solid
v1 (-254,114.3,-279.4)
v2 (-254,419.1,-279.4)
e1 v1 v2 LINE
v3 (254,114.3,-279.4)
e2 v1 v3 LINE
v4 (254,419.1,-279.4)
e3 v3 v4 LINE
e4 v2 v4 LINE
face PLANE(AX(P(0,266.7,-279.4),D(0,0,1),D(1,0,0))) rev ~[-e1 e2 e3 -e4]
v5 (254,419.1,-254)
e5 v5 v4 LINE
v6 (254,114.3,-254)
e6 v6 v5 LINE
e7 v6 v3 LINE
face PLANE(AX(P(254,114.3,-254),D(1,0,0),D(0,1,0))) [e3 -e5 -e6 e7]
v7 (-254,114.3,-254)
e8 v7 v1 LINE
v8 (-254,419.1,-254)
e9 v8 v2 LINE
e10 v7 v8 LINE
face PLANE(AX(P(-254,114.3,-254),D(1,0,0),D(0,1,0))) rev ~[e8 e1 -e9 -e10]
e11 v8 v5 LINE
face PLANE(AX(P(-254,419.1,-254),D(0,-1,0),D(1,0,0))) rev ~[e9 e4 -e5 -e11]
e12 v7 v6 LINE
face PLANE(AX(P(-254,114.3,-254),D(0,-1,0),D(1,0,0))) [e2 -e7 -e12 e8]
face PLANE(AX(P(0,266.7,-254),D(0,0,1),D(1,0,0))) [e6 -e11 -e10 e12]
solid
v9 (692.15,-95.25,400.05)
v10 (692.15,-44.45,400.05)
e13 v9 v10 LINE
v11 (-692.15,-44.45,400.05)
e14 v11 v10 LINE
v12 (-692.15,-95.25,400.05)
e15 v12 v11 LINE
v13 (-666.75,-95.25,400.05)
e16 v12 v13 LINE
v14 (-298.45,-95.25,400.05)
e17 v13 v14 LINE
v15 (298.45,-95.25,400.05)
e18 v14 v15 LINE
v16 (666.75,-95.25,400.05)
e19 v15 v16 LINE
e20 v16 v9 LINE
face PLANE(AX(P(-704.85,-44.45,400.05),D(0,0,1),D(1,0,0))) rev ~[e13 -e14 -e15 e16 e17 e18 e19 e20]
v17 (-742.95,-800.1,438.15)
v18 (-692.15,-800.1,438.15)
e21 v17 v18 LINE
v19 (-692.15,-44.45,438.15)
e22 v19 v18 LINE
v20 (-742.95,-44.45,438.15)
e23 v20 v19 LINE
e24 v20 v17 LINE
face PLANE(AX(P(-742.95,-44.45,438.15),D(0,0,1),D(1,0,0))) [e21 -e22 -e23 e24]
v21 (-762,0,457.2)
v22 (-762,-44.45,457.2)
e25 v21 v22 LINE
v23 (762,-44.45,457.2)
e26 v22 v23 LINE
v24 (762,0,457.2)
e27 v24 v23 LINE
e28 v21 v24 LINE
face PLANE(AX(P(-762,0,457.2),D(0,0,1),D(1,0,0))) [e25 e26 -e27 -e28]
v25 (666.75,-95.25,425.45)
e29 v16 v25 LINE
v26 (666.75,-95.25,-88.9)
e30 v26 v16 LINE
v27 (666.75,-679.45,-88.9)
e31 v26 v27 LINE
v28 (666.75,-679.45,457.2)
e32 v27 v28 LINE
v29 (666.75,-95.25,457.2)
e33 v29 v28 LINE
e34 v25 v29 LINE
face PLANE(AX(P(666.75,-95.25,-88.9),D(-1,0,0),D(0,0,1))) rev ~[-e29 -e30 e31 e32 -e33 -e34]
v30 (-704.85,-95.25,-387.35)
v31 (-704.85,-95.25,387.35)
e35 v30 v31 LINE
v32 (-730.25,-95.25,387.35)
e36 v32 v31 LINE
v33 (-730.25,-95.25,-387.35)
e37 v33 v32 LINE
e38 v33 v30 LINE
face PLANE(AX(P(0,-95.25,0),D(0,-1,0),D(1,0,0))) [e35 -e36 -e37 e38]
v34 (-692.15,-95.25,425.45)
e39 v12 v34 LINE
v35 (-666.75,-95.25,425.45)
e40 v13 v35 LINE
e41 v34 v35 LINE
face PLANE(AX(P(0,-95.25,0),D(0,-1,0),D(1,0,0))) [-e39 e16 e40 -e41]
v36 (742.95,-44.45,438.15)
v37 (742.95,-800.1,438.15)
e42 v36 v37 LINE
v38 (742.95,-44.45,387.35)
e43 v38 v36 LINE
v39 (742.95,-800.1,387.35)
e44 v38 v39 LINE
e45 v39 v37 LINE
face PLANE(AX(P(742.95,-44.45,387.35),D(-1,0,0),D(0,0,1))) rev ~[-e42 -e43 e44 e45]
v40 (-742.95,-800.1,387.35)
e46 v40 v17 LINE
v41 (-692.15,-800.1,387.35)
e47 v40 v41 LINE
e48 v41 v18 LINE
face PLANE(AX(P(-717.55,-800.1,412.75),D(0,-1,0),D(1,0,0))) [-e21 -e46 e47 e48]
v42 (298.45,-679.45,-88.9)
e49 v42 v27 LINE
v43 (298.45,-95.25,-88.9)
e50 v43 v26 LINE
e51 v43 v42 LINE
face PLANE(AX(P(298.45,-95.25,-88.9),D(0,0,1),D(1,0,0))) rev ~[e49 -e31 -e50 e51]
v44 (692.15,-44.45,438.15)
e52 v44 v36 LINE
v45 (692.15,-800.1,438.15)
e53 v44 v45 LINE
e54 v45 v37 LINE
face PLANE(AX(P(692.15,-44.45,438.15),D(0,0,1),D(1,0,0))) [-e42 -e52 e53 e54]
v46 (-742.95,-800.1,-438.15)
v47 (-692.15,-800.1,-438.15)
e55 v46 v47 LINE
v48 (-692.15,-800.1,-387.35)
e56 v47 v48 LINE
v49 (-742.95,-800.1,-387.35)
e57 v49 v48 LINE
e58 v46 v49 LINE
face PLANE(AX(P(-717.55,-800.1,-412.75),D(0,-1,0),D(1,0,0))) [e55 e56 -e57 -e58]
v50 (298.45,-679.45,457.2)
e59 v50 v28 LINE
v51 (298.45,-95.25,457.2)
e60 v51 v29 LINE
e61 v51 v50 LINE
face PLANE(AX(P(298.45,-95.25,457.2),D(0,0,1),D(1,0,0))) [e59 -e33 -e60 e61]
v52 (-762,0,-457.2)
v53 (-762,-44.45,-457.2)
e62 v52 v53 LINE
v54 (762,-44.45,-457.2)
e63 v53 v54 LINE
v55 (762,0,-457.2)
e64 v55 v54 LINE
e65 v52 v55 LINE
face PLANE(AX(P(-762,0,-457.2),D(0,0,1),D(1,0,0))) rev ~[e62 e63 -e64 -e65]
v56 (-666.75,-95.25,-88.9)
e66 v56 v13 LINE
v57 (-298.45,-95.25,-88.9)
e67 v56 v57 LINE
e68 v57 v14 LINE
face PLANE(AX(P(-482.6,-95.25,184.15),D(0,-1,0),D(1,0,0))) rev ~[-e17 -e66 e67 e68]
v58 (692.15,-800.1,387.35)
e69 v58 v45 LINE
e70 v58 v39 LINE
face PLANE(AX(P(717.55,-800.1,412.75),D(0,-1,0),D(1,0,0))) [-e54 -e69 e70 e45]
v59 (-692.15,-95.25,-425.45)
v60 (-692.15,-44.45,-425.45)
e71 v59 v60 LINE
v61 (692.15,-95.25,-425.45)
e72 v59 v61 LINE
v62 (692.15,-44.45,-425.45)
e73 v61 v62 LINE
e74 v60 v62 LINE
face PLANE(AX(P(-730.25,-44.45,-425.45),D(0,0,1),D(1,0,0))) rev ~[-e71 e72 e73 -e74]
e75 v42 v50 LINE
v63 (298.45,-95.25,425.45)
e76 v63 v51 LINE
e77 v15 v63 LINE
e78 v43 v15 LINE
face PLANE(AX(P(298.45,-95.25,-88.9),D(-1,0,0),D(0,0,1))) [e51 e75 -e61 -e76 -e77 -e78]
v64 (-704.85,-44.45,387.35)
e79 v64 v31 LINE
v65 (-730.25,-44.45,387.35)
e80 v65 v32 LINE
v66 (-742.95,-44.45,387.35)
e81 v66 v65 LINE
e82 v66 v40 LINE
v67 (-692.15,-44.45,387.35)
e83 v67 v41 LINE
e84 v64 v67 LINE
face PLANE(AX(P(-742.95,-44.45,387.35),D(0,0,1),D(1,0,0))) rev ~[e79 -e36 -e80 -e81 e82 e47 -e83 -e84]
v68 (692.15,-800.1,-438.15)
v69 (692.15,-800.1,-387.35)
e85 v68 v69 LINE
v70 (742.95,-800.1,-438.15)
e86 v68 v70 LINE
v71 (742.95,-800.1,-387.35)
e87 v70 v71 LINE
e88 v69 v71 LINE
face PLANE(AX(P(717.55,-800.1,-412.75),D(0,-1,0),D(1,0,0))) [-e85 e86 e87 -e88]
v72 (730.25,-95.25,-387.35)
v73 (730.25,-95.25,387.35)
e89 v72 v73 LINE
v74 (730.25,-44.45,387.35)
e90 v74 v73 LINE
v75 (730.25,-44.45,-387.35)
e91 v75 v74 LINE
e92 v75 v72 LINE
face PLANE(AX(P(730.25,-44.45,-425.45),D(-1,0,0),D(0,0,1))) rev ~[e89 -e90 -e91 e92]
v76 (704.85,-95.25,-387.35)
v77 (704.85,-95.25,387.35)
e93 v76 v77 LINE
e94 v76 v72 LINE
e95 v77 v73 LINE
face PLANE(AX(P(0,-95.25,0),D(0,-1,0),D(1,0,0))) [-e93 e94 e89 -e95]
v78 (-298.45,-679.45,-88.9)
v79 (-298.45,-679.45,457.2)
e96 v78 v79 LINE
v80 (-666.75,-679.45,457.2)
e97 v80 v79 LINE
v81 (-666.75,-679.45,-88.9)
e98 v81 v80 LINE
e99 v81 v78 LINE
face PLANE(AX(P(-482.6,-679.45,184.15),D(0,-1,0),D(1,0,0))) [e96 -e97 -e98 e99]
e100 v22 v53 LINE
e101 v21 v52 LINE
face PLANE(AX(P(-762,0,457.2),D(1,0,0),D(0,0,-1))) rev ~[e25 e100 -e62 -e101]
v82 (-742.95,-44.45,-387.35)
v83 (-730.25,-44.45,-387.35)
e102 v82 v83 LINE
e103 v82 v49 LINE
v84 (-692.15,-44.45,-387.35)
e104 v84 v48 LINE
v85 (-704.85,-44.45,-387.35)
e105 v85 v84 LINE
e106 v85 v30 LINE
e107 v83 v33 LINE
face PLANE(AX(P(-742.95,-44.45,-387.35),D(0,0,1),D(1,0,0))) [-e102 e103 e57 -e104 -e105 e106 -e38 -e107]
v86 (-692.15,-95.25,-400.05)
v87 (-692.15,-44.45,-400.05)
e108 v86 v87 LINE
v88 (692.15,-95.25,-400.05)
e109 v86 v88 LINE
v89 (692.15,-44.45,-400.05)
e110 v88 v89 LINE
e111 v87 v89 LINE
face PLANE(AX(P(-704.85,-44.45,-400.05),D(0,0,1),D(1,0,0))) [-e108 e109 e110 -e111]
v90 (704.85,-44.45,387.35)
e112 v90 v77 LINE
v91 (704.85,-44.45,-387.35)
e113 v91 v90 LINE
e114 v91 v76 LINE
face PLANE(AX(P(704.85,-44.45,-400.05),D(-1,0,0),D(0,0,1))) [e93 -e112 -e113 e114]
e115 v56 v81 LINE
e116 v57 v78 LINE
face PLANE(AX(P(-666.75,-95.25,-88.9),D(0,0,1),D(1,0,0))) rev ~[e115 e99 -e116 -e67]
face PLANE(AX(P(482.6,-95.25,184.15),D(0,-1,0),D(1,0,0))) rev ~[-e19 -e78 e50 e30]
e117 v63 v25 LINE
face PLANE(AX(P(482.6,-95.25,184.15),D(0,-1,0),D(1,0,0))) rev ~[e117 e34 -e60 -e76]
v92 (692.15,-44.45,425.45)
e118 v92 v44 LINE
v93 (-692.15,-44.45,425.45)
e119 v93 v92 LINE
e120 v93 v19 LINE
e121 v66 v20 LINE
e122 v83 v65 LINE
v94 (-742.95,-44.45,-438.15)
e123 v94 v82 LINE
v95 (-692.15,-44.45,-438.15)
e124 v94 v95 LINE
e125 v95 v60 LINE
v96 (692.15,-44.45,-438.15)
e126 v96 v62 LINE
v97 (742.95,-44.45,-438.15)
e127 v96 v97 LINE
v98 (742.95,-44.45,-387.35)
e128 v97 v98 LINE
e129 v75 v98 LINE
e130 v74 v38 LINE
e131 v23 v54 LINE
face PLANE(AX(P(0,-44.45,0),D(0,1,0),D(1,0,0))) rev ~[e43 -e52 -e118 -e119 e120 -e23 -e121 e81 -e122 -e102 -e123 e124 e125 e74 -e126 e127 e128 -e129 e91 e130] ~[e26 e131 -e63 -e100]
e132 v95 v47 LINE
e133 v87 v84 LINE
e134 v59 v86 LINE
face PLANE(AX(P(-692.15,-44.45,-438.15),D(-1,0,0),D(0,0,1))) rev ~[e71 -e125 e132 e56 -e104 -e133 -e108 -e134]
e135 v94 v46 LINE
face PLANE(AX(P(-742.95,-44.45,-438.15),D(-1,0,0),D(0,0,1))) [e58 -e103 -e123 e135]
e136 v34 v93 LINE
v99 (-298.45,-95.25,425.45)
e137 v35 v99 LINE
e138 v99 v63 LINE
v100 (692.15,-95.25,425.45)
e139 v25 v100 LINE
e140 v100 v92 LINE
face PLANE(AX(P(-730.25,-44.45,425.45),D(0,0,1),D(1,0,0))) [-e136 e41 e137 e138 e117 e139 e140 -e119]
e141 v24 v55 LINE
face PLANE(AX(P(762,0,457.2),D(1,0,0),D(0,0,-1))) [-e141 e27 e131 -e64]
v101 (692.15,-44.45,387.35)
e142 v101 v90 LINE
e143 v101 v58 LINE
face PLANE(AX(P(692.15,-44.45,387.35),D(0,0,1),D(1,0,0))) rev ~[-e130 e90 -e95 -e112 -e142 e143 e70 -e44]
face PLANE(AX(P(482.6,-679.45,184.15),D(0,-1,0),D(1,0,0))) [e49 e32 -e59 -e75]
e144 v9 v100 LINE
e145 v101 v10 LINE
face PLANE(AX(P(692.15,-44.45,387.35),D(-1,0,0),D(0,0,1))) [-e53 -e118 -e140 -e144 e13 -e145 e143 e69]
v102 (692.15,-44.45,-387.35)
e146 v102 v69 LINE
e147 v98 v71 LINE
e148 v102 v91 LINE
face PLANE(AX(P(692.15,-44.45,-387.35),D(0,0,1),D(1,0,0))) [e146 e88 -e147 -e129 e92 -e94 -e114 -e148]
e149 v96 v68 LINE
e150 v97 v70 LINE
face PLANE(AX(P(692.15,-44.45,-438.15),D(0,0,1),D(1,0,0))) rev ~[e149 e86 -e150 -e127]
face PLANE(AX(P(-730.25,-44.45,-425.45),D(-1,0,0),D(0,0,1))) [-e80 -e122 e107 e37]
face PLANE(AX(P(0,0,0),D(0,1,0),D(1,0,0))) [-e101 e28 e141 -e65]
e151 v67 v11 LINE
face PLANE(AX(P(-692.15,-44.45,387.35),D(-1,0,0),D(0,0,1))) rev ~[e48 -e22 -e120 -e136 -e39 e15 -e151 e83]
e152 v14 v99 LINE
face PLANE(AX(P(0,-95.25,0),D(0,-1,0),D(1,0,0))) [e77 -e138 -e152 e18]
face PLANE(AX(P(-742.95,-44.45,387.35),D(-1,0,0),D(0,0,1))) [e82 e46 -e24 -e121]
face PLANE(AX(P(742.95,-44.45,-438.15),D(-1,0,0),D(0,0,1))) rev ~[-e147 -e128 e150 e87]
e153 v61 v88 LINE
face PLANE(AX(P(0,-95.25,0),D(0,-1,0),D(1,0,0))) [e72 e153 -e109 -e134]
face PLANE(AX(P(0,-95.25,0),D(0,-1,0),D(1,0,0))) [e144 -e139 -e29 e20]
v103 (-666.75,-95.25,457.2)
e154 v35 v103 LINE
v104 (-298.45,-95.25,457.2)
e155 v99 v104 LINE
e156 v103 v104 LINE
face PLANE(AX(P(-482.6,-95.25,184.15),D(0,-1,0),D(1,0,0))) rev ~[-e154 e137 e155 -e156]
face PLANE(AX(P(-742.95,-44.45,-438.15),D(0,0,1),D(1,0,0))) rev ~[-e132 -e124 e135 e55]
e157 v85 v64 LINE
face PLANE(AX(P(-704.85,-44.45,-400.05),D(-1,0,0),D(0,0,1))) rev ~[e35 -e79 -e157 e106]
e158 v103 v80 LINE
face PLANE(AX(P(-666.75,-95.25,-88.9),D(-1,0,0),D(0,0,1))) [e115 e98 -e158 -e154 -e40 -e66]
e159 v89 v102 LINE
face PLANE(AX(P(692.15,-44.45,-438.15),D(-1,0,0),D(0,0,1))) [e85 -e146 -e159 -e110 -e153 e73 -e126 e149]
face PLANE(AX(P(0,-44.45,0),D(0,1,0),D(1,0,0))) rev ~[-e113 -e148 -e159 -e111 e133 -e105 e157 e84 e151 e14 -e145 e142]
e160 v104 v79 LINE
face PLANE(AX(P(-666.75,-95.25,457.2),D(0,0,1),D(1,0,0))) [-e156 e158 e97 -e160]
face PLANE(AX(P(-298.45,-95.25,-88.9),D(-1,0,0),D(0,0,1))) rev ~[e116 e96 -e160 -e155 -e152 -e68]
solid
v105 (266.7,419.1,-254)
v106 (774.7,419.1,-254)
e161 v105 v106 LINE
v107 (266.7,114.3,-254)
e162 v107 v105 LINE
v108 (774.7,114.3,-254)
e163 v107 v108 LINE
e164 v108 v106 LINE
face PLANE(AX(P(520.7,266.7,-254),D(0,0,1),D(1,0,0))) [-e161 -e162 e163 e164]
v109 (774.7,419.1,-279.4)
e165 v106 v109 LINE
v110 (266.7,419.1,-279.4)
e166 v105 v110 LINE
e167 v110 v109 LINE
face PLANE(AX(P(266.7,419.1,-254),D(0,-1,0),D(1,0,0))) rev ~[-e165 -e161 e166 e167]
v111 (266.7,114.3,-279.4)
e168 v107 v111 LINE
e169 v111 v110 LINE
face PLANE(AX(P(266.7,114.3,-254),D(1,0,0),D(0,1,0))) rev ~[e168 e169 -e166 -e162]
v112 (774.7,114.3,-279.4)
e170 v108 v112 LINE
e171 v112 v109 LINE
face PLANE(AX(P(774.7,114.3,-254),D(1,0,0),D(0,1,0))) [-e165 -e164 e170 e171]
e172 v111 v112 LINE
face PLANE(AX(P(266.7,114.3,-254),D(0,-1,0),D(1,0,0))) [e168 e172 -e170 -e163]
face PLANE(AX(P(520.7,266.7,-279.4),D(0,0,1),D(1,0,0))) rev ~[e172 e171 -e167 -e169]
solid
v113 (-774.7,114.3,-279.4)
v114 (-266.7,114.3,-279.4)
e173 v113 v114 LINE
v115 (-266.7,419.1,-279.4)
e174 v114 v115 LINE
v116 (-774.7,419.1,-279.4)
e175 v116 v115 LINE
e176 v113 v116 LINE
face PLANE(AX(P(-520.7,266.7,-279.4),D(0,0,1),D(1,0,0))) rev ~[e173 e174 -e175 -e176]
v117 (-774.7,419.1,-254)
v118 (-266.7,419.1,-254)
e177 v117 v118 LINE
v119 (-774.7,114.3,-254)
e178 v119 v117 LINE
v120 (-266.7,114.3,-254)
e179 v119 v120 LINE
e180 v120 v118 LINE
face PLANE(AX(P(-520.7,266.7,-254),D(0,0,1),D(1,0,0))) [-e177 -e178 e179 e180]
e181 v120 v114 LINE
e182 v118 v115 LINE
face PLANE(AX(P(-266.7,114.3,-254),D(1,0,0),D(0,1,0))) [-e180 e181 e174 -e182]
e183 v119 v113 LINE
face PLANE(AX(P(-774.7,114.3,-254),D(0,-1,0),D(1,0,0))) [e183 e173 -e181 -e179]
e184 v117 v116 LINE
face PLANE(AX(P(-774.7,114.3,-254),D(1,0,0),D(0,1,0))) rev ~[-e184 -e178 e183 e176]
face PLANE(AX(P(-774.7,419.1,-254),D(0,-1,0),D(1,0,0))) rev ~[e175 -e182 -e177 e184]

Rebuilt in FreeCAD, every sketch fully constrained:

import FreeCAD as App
import Part
import Sketcher

V = App.Vector
Q = App.Units.Quantity


def add_polygon(sketch, points):
    """Adds a closed chain of lines whose ends are joined by coincident constraints."""
    first, n = sketch.GeometryCount, len(points)
    for a, b in zip(points, points[1:] + points[:1]):
        sketch.addGeometry(Part.LineSegment(App.Vector(*a, 0), App.Vector(*b, 0)), False)
    for i in range(n):
        sketch.addConstraint(Sketcher.Constraint("Coincident", first + i, 2, first + (i + 1) % n, 1))

doc = App.newDocument("Part")
body = doc.addObject("PartDesign::Body", "Body")

# Sketch on XZ plane
sketch1 = body.newObject("Sketcher::SketchObject", "Sketch")
sketch1.AttachmentSupport = (doc.getObject("XZ_Plane"), [""])
sketch1.MapMode = "FlatFace"
add_polygon(sketch1, [(-762, -457), (-762, 457), (762, 457), (762, -457)])  # lines 0-3
sketch1.addConstraint([
    Sketcher.Constraint("Vertical", 0),
    Sketcher.Constraint("Horizontal", 1),
    Sketcher.Constraint("Vertical", 2),
    Sketcher.Constraint("Horizontal", 3),
    Sketcher.Constraint("Symmetric", 0, 2, 2, 2, -1, 1),
    Sketcher.Constraint("DistanceX", 1, 1, 1, 2, Q("60 in")),
    Sketcher.Constraint("DistanceY", 0, 1, 0, 2, Q("36 in")),
])
pad1 = body.newObject("PartDesign::Pad", "Pad")
pad1.Profile = sketch1
pad1.Length = Q("1.75 in")

# Sketch on XZ plane
sketch2 = body.newObject("Sketcher::SketchObject", "Sketch001")
sketch2.AttachmentSupport = (doc.getObject("XZ_Plane"), [""])
sketch2.MapMode = "FlatFace"
sketch2.AttachmentOffset = App.Placement(V(0, 0, 1.75 * 25.4), App.Rotation())
add_polygon(sketch2, [(692, 438), (692, 387), (743, 387), (743, 438)])  # lines 0-3
add_polygon(sketch2, [(692, -387), (692, -438), (743, -438), (743, -387)])  # lines 4-7
add_polygon(sketch2, [(-743, -387), (-743, -438), (-692, -438), (-692, -387)])  # lines 8-11
add_polygon(sketch2, [(-743, 438), (-743, 387), (-692, 387), (-692, 438)])  # lines 12-15
sketch2.addConstraint([
    Sketcher.Constraint("Vertical", 0),
    Sketcher.Constraint("Horizontal", 1),
    Sketcher.Constraint("Vertical", 2),
    Sketcher.Constraint("Horizontal", 3),
    Sketcher.Constraint("Vertical", 4),
    Sketcher.Constraint("Horizontal", 5),
    Sketcher.Constraint("Vertical", 6),
    Sketcher.Constraint("Horizontal", 7),
    Sketcher.Constraint("Vertical", 8),
    Sketcher.Constraint("Horizontal", 9),
    Sketcher.Constraint("Vertical", 10),
    Sketcher.Constraint("Horizontal", 11),
    Sketcher.Constraint("Vertical", 12),
    Sketcher.Constraint("Horizontal", 13),
    Sketcher.Constraint("Vertical", 14),
    Sketcher.Constraint("Horizontal", 15),
    Sketcher.Constraint("Symmetric", 2, 2, 8, 2, -1, 1),
    Sketcher.Constraint("Symmetric", 0, 2, 10, 2, -1, 1),
    Sketcher.Constraint("Symmetric", 6, 2, 12, 2, -1, 1),
    Sketcher.Constraint("Symmetric", 4, 2, 14, 2, -1, 1),
    Sketcher.Constraint("Symmetric", 5, 2, 8, 2, -2),
    Sketcher.Constraint("Symmetric", 7, 2, 10, 2, -2),
    Sketcher.Constraint("Equal", 15, 0),
    Sketcher.Constraint("DistanceX", 1, 1, 1, 2, Q("2 in")),
    Sketcher.Constraint("DistanceY", 4, 2, 0, 2, Q("32.5 in")),
    Sketcher.Constraint("DistanceX", 8, 2, 4, 2, Q("56.5 in")),
])
pad2 = body.newObject("PartDesign::Pad", "Pad001")
pad2.Profile = sketch2
pad2.Length = Q("29.75 in")

# Sketch on XZ plane
sketch3 = body.newObject("Sketcher::SketchObject", "Sketch002")
sketch3.AttachmentSupport = (doc.getObject("XZ_Plane"), [""])
sketch3.MapMode = "FlatFace"
sketch3.AttachmentOffset = App.Placement(V(0, 0, 1.75 * 25.4), App.Rotation())
add_polygon(sketch3, [(-730, 425), (-730, -425), (730, -425), (730, 425)])  # lines 0-3
add_polygon(sketch3, [(705, -400), (-705, -400), (-705, 400), (705, 400)])  # lines 4-7
sketch3.addConstraint([
    Sketcher.Constraint("Vertical", 0),
    Sketcher.Constraint("Horizontal", 1),
    Sketcher.Constraint("Vertical", 2),
    Sketcher.Constraint("Horizontal", 3),
    Sketcher.Constraint("Horizontal", 4),
    Sketcher.Constraint("Vertical", 5),
    Sketcher.Constraint("Horizontal", 6),
    Sketcher.Constraint("Vertical", 7),
    Sketcher.Constraint("Symmetric", 0, 2, 2, 2, -1, 1),
    Sketcher.Constraint("Symmetric", 4, 2, 6, 2, -1, 1),
    Sketcher.Constraint("DistanceX", 1, 1, 1, 2, Q("57.5 in")),
    Sketcher.Constraint("DistanceX", 4, 2, 4, 1, Q("55.5 in")),
    Sketcher.Constraint("DistanceY", 0, 2, 0, 1, Q("33.5 in")),
    Sketcher.Constraint("DistanceY", 5, 1, 5, 2, Q("31.5 in")),
])
pad3 = body.newObject("PartDesign::Pad", "Pad002")
pad3.Profile = sketch3
pad3.Length = Q("2 in")

# Sketch on XZ plane
sketch4 = body.newObject("Sketcher::SketchObject", "Sketch003")
sketch4.AttachmentSupport = (doc.getObject("XZ_Plane"), [""])
sketch4.MapMode = "FlatFace"
sketch4.AttachmentOffset = App.Placement(V(0, 0, 3.75 * 25.4), App.Rotation())
add_polygon(sketch4, [(-667, 457), (-667, -89), (-298, -89), (-298, 457)])  # lines 0-3
add_polygon(sketch4, [(298, 457), (298, -89), (667, -89), (667, 457)])  # lines 4-7
sketch4.addConstraint([
    Sketcher.Constraint("Vertical", 0),
    Sketcher.Constraint("Horizontal", 1),
    Sketcher.Constraint("Vertical", 2),
    Sketcher.Constraint("Horizontal", 3),
    Sketcher.Constraint("Vertical", 4),
    Sketcher.Constraint("Horizontal", 5),
    Sketcher.Constraint("Vertical", 6),
    Sketcher.Constraint("Horizontal", 7),
    Sketcher.Constraint("Symmetric", 1, 2, 4, 2, -2),
    Sketcher.Constraint("Symmetric", 3, 2, 6, 2, -2),
    Sketcher.Constraint("DistanceX", 1, 1, 1, 2, Q("14.5 in")),
    Sketcher.Constraint("DistanceY", 0, 2, 0, 1, Q("21.5 in")),
    Sketcher.Constraint("DistanceY", -1, 1, 2, 2, Q("18 in")),
    Sketcher.Constraint("DistanceX", 0, 2, 4, 2, Q("38 in")),
])
pad4 = body.newObject("PartDesign::Pad", "Pad003")
pad4.Profile = sketch4
pad4.Length = Q("23 in")
body2 = doc.addObject("PartDesign::Body", "Body001")

# Sketch on XY plane
sketch5 = body2.newObject("Sketcher::SketchObject", "Sketch004")
sketch5.AttachmentSupport = (doc.getObject("XY_Plane001"), [""])
sketch5.MapMode = "FlatFace"
sketch5.AttachmentOffset = App.Placement(V(0, 0, -10 * 25.4), App.Rotation())
add_polygon(sketch5, [(-775, 419), (-775, 114), (-267, 114), (-267, 419)])  # lines 0-3
sketch5.addConstraint([
    Sketcher.Constraint("Vertical", 0),
    Sketcher.Constraint("Horizontal", 1),
    Sketcher.Constraint("Vertical", 2),
    Sketcher.Constraint("Horizontal", 3),
    Sketcher.Constraint("DistanceX", 1, 1, 1, 2, Q("20 in")),
    Sketcher.Constraint("DistanceY", 0, 2, 0, 1, Q("12 in")),
    Sketcher.Constraint("DistanceX", 0, 2, -1, 1, Q("30.5 in")),
    Sketcher.Constraint("DistanceY", -1, 1, 0, 2, Q("4.5 in")),
])
pad5 = body2.newObject("PartDesign::Pad", "Pad004")
pad5.Profile = sketch5
pad5.Length = Q("1 in")
pad5.Reversed = True
body3 = doc.addObject("PartDesign::Body", "Body002")

# Sketch on XY plane
sketch6 = body3.newObject("Sketcher::SketchObject", "Sketch005")
sketch6.AttachmentSupport = (doc.getObject("XY_Plane002"), [""])
sketch6.MapMode = "FlatFace"
sketch6.AttachmentOffset = App.Placement(V(0, 0, -10 * 25.4), App.Rotation())
add_polygon(sketch6, [(-254, 419), (-254, 114), (254, 114), (254, 419)])  # lines 0-3
sketch6.addConstraint([
    Sketcher.Constraint("Vertical", 0),
    Sketcher.Constraint("Horizontal", 1),
    Sketcher.Constraint("Vertical", 2),
    Sketcher.Constraint("Horizontal", 3),
    Sketcher.Constraint("DistanceX", 1, 1, 1, 2, Q("20 in")),
    Sketcher.Constraint("DistanceY", 0, 2, 0, 1, Q("12 in")),
    Sketcher.Constraint("DistanceX", 0, 2, -1, 1, Q("10 in")),
    Sketcher.Constraint("DistanceY", -1, 1, 0, 2, Q("4.5 in")),
])
pad6 = body3.newObject("PartDesign::Pad", "Pad005")
pad6.Profile = sketch6
pad6.Length = Q("1 in")
pad6.Reversed = True
body4 = doc.addObject("PartDesign::Body", "Body003")

# Sketch on XY plane
sketch7 = body4.newObject("Sketcher::SketchObject", "Sketch006")
sketch7.AttachmentSupport = (doc.getObject("XY_Plane003"), [""])
sketch7.MapMode = "FlatFace"
sketch7.AttachmentOffset = App.Placement(V(0, 0, -10 * 25.4), App.Rotation())
add_polygon(sketch7, [(267, 419), (267, 114), (775, 114), (775, 419)])  # lines 0-3
sketch7.addConstraint([
    Sketcher.Constraint("Vertical", 0),
    Sketcher.Constraint("Horizontal", 1),
    Sketcher.Constraint("Vertical", 2),
    Sketcher.Constraint("Horizontal", 3),
    Sketcher.Constraint("DistanceX", 1, 1, 1, 2, Q("20 in")),
    Sketcher.Constraint("DistanceY", 0, 2, 0, 1, Q("12 in")),
    Sketcher.Constraint("DistanceX", -1, 1, 0, 2, Q("10.5 in")),
    Sketcher.Constraint("DistanceY", -1, 1, 0, 2, Q("4.5 in")),
])
pad7 = body4.newObject("PartDesign::Pad", "Pad006")
pad7.Profile = sketch7
pad7.Length = Q("1 in")
pad7.Reversed = True

doc.recompute()
